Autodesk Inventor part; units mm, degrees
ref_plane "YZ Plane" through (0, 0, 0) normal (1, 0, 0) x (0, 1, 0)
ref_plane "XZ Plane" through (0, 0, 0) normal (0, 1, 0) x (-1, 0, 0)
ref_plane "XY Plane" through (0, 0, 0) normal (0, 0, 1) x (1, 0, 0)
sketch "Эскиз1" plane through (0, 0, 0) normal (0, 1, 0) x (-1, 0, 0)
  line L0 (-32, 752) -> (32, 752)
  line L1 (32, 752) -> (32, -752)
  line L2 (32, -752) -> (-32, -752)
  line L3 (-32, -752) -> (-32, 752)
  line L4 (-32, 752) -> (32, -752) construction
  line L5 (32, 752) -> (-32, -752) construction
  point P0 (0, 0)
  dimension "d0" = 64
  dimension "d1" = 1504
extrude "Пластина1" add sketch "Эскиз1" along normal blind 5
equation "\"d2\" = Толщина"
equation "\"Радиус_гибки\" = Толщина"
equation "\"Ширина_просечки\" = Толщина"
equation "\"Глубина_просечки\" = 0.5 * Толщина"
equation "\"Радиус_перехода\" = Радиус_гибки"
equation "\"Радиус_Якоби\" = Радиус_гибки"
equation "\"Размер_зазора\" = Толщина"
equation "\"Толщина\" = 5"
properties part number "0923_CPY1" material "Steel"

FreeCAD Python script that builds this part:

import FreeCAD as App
import Part
import Sketcher
Q = App.Units.Quantity


def add_polygon(sketch, points):
    """Adds a closed chain of lines whose ends are joined by coincident constraints."""
    first, n = sketch.GeometryCount, len(points)
    for a, b in zip(points, points[1:] + points[:1]):
        sketch.addGeometry(Part.LineSegment(App.Vector(*a, 0), App.Vector(*b, 0)), False)
    for i in range(n):
        sketch.addConstraint(Sketcher.Constraint("Coincident", first + i, 2, first + (i + 1) % n, 1))

doc = App.newDocument("Part")
body = doc.addObject("PartDesign::Body", "Body")

sketch1 = body.newObject("Sketcher::SketchObject", "Sketch")
sketch1.AttachmentSupport = (doc.getObject("XZ_Plane"), [""])
sketch1.MapMode = "FlatFace"
add_polygon(sketch1, [(-32, 752), (32, 752), (32, -752), (-32, -752)])
sketch1.addConstraint(Sketcher.Constraint("Horizontal", 0))
sketch1.addConstraint(Sketcher.Constraint("Vertical", 1))
sketch1.addConstraint(Sketcher.Constraint("Horizontal", 2))
sketch1.addConstraint(Sketcher.Constraint("Vertical", 3))
sketch1.addConstraint(Sketcher.Constraint("Symmetric", 0, 2, 2, 2, -1, 1))
sketch1.addConstraint(Sketcher.Constraint("DistanceX", 0, 1, 0, 2, Q("64 mm")))
sketch1.addConstraint(Sketcher.Constraint("DistanceY", 1, 2, 1, 1, Q("1504 mm")))
pad1 = body.newObject("PartDesign::Pad", "Pad")
pad1.Profile = sketch1
pad1.Length = 5
pad1.Reversed = True

doc.recompute()
